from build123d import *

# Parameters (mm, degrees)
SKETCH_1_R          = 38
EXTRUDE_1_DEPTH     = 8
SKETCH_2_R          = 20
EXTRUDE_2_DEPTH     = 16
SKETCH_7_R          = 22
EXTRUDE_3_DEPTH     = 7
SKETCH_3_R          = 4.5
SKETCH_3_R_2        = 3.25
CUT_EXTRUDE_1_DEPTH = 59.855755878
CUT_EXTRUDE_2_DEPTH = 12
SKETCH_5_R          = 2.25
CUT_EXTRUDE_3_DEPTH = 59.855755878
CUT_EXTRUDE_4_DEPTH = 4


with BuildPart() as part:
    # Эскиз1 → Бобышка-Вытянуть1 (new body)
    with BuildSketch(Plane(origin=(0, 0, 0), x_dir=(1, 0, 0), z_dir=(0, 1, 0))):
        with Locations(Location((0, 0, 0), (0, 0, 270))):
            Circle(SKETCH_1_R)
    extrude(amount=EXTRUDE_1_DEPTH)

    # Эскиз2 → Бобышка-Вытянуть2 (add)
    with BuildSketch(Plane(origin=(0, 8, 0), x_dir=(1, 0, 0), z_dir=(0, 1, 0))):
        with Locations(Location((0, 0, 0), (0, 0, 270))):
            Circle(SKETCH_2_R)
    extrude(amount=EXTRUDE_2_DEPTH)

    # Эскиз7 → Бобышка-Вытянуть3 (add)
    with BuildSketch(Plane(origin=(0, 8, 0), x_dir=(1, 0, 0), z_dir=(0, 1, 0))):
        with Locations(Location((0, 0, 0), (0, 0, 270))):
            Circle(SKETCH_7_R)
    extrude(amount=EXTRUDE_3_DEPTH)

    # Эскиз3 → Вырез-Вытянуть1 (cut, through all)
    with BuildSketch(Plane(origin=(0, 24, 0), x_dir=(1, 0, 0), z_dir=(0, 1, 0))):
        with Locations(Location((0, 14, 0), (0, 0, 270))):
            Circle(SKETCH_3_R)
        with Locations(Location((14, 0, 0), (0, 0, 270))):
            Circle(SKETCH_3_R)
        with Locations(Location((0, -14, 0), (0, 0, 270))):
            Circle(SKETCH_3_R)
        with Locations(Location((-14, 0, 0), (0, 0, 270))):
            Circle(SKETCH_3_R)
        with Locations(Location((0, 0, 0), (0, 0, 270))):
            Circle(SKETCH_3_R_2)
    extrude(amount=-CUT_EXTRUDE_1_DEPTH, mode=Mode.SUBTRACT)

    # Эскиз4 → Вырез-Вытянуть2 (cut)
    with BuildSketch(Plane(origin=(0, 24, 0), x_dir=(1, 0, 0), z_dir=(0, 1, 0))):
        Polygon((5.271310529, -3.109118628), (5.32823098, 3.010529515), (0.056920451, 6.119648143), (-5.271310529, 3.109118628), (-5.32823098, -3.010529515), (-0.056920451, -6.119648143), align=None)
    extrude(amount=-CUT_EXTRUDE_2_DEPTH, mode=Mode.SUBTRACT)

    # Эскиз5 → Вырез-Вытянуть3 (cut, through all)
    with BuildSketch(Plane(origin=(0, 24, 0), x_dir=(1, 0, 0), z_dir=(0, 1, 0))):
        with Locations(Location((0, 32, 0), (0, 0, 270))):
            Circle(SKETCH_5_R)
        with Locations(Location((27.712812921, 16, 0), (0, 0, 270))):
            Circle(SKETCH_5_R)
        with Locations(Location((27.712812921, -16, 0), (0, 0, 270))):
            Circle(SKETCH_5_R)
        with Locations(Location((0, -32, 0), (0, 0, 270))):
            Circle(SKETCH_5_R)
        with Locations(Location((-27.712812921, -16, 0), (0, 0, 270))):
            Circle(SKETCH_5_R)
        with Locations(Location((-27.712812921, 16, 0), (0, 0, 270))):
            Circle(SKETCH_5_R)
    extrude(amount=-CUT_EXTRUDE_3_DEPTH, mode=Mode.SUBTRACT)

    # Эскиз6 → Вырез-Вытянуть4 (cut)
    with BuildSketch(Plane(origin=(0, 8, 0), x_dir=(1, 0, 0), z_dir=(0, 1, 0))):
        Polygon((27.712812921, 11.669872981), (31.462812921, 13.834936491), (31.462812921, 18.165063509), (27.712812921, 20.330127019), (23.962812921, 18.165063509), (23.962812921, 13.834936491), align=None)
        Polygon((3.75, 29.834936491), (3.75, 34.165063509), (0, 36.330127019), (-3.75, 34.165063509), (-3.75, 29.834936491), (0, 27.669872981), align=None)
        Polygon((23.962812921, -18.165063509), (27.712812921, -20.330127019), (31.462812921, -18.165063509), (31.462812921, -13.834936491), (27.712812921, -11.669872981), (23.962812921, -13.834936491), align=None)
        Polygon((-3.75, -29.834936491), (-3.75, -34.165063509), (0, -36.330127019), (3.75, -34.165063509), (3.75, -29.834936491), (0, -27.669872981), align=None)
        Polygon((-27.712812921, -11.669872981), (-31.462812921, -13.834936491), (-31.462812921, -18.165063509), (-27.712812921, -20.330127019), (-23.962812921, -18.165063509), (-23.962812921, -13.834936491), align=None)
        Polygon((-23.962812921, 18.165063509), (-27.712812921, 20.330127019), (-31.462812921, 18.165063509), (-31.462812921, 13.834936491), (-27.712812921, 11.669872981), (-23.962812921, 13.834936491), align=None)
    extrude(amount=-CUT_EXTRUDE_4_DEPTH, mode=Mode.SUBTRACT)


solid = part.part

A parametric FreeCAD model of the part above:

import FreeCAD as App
import Part
import Sketcher
Q = App.Units.Quantity

doc = App.newDocument("Part")
body = doc.addObject("PartDesign::Body", "Body")

# Sketch on XZ plane
sketch1 = body.newObject("Sketcher::SketchObject", "Sketch")
sketch1.AttachmentSupport = (doc.getObject("XZ_Plane"), [""])
sketch1.MapMode = "FlatFace"
sketch1.addGeometry(Part.Circle(App.Vector(0, 0, 0), App.Vector(0, 0, 1), 38), False)
sketch1.addConstraint([
    Sketcher.Constraint("Coincident", 0, 3, -1, 1),
    Sketcher.Constraint("Diameter", 0, Q("76 mm")),
])
pad1 = body.newObject("PartDesign::Pad", "Pad")
pad1.Profile = sketch1
pad1.Length = 8
pad1.Reversed = True

# Sketch on XZ plane
sketch2 = body.newObject("Sketcher::SketchObject", "Sketch001")
sketch2.AttachmentSupport = (doc.getObject("XZ_Plane"), [""])
sketch2.MapMode = "FlatFace"
sketch2.AttachmentOffset = App.Placement(App.Vector(0, 0, -8), App.Rotation())
sketch2.addGeometry(Part.Circle(App.Vector(0, 0, 0), App.Vector(0, 0, 1), 20), False)
sketch2.addConstraint([
    Sketcher.Constraint("Coincident", 0, 3, -1, 1),
    Sketcher.Constraint("Diameter", 0, Q("40 mm")),
])
pad2 = body.newObject("PartDesign::Pad", "Pad001")
pad2.Profile = sketch2
pad2.Length = 16
pad2.Reversed = True

# Sketch on XZ plane
sketch3 = body.newObject("Sketcher::SketchObject", "Sketch002")
sketch3.AttachmentSupport = (doc.getObject("XZ_Plane"), [""])
sketch3.MapMode = "FlatFace"
sketch3.AttachmentOffset = App.Placement(App.Vector(0, 0, -8), App.Rotation())
sketch3.addGeometry(Part.Circle(App.Vector(0, 0, 0), App.Vector(0, 0, 1), 22), False)
sketch3.addConstraint([
    Sketcher.Constraint("Coincident", 0, 3, -1, 1),
    Sketcher.Constraint("Diameter", 0, Q("44 mm")),
])
pad3 = body.newObject("PartDesign::Pad", "Pad002")
pad3.Profile = sketch3
pad3.Length = 7
pad3.Reversed = True

# Sketch on XZ plane
sketch4 = body.newObject("Sketcher::SketchObject", "Sketch003")
sketch4.AttachmentSupport = (doc.getObject("XZ_Plane"), [""])
sketch4.MapMode = "FlatFace"
sketch4.AttachmentOffset = App.Placement(App.Vector(0, 0, -24), App.Rotation())
sketch4.addGeometry([
    Part.Circle(App.Vector(0, -14, 0), App.Vector(0, 0, 1), 4.5),  # 0
    Part.Circle(App.Vector(14, 0, 0), App.Vector(0, 0, 1), 4.5),  # 1
    Part.Circle(App.Vector(0, 14, 0), App.Vector(0, 0, 1), 4.5),  # 2
    Part.Circle(App.Vector(-14, 0, 0), App.Vector(0, 0, 1), 4.5),  # 3
    Part.Circle(App.Vector(0, 0, 0), App.Vector(0, 0, 1), 3.2),  # 4
], False)
sketch4.addConstraint([
    Sketcher.Constraint("Coincident", 4, 3, -1, 1),
    Sketcher.Constraint("Equal", 0, 1),
    Sketcher.Constraint("Equal", 1, 2),
    Sketcher.Constraint("Equal", 2, 3),
    Sketcher.Constraint("Symmetric", 0, 3, 2, 3, -1, 1),
    Sketcher.Constraint("Symmetric", 1, 3, 3, 3, -1, 1),
    Sketcher.Constraint("PointOnObject", 0, 3, -2),
    Sketcher.Constraint("PointOnObject", 1, 3, -1),
    Sketcher.Constraint("Diameter", 0, Q("9 mm")),
    Sketcher.Constraint("Diameter", 4, Q("6.5 mm")),
    Sketcher.Constraint("DistanceY", 0, 3, -1, 1, Q("14 mm")),
    Sketcher.Constraint("DistanceX", -1, 1, 1, 3, Q("14 mm")),
])
pocket1 = body.newObject("PartDesign::Pocket", "Pocket")
pocket1.Profile = sketch4
pocket1.Type = "ThroughAll"
pocket1.Reversed = True

# Sketch on XZ plane
sketch5 = body.newObject("Sketcher::SketchObject", "Sketch004")
sketch5.AttachmentSupport = (doc.getObject("XZ_Plane"), [""])
sketch5.MapMode = "FlatFace"
sketch5.AttachmentOffset = App.Placement(App.Vector(0, 0, -24), App.Rotation())
sketch5.addGeometry([
    Part.LineSegment(App.Vector(5, 3, 0), App.Vector(5, -3, 0)),  # 0
    Part.LineSegment(App.Vector(5, -3, 0), App.Vector(0, -6, 0)),  # 1
    Part.LineSegment(App.Vector(0, -6, 0), App.Vector(-5, -3, 0)),  # 2
    Part.LineSegment(App.Vector(-5, -3, 0), App.Vector(-5, 3, 0)),  # 3
    Part.LineSegment(App.Vector(-5, 3, 0), App.Vector(0, 6, 0)),  # 4
    Part.LineSegment(App.Vector(0, 6, 0), App.Vector(5, 3, 0)),  # 5
], False)
sketch5.addConstraint([
    Sketcher.Constraint("Coincident", 0, 2, 1, 1),
    Sketcher.Constraint("Coincident", 1, 2, 2, 1),
    Sketcher.Constraint("Coincident", 2, 2, 3, 1),
    Sketcher.Constraint("Coincident", 3, 2, 4, 1),
    Sketcher.Constraint("Coincident", 4, 2, 5, 1),
    Sketcher.Constraint("Coincident", 5, 2, 0, 1),
    Sketcher.Constraint("Symmetric", 0, 2, 3, 2, -1, 1),
    Sketcher.Constraint("Symmetric", 1, 2, 4, 2, -1, 1),
    Sketcher.Constraint("Symmetric", 2, 2, 5, 2, -1, 1),
    Sketcher.Constraint("Equal", 0, 1),
    Sketcher.Constraint("Equal", 1, 2),
    Sketcher.Constraint("DistanceX", -1, 1, 0, 2, Q("5.328231 mm")),
    Sketcher.Constraint("DistanceY", 0, 2, -1, 1, Q("3.01053 mm")),
    Sketcher.Constraint("DistanceX", -1, 1, 1, 2, Q("0.05692 mm")),
    Sketcher.Constraint("DistanceY", 1, 2, -1, 1, Q("6.119648 mm")),
])
pocket2 = body.newObject("PartDesign::Pocket", "Pocket001")
pocket2.Profile = sketch5
pocket2.Length = 12
pocket2.Reversed = True

# Sketch on XZ plane
sketch6 = body.newObject("Sketcher::SketchObject", "Sketch005")
sketch6.AttachmentSupport = (doc.getObject("XZ_Plane"), [""])
sketch6.MapMode = "FlatFace"
sketch6.AttachmentOffset = App.Placement(App.Vector(0, 0, -24), App.Rotation())
sketch6.addGeometry([
    Part.Circle(App.Vector(0, -32, 0), App.Vector(0, 0, 1), 2.2),  # 0
    Part.Circle(App.Vector(27.7, -16, 0), App.Vector(0, 0, 1), 2.2),  # 1
    Part.Circle(App.Vector(27.7, 16, 0), App.Vector(0, 0, 1), 2.2),  # 2
    Part.Circle(App.Vector(0, 32, 0), App.Vector(0, 0, 1), 2.2),  # 3
    Part.Circle(App.Vector(-27.7, 16, 0), App.Vector(0, 0, 1), 2.2),  # 4
    Part.Circle(App.Vector(-27.7, -16, 0), App.Vector(0, 0, 1), 2.2),  # 5
], False)
sketch6.addConstraint([
    Sketcher.Constraint("Equal", 0, 1),
    Sketcher.Constraint("Equal", 1, 2),
    Sketcher.Constraint("Equal", 2, 3),
    Sketcher.Constraint("Equal", 3, 4),
    Sketcher.Constraint("Equal", 4, 5),
    Sketcher.Constraint("Symmetric", 0, 3, 3, 3, -1, 1),
    Sketcher.Constraint("Symmetric", 1, 3, 4, 3, -1, 1),
    Sketcher.Constraint("Symmetric", 2, 3, 5, 3, -1, 1),
    Sketcher.Constraint("Symmetric", 2, 3, 4, 3, -2),
    Sketcher.Constraint("PointOnObject", 0, 3, -2),
    Sketcher.Constraint("Diameter", 0, Q("4.5 mm")),
    Sketcher.Constraint("DistanceY", 0, 3, -1, 1, Q("32 mm")),
    Sketcher.Constraint("DistanceY", 1, 3, -1, 1, Q("16 mm")),
    Sketcher.Constraint("DistanceX", -1, 1, 1, 3, Q("27.712813 mm")),
])
pocket3 = body.newObject("PartDesign::Pocket", "Pocket002")
pocket3.Profile = sketch6
pocket3.Type = "ThroughAll"
pocket3.Reversed = True

# Sketch on XZ plane
sketch7 = body.newObject("Sketcher::SketchObject", "Sketch006")
sketch7.AttachmentSupport = (doc.getObject("XZ_Plane"), [""])
sketch7.MapMode = "FlatFace"
sketch7.AttachmentOffset = App.Placement(App.Vector(0, 0, -8), App.Rotation())
sketch7.addGeometry([
    Part.LineSegment(App.Vector(27.7, -11.7, 0), App.Vector(31.5, -13.8, 0)),  # 0
    Part.LineSegment(App.Vector(31.5, -13.8, 0), App.Vector(31.5, -18.2, 0)),  # 1
    Part.LineSegment(App.Vector(31.5, -18.2, 0), App.Vector(27.7, -20.3, 0)),  # 2
    Part.LineSegment(App.Vector(27.7, -20.3, 0), App.Vector(24, -18.2, 0)),  # 3
    Part.LineSegment(App.Vector(24, -18.2, 0), App.Vector(24, -13.8, 0)),  # 4
    Part.LineSegment(App.Vector(24, -13.8, 0), App.Vector(27.7, -11.7, 0)),  # 5
    Part.LineSegment(App.Vector(3.8, -29.8, 0), App.Vector(3.8, -34.2, 0)),  # 6
    Part.LineSegment(App.Vector(3.8, -34.2, 0), App.Vector(0, -36.3, 0)),  # 7
    Part.LineSegment(App.Vector(0, -36.3, 0), App.Vector(-3.8, -34.2, 0)),  # 8
    Part.LineSegment(App.Vector(-3.8, -34.2, 0), App.Vector(-3.8, -29.8, 0)),  # 9
    Part.LineSegment(App.Vector(-3.8, -29.8, 0), App.Vector(0, -27.7, 0)),  # 10
    Part.LineSegment(App.Vector(0, -27.7, 0), App.Vector(3.8, -29.8, 0)),  # 11
    Part.LineSegment(App.Vector(24, 18.2, 0), App.Vector(27.7, 20.3, 0)),  # 12
    Part.LineSegment(App.Vector(27.7, 20.3, 0), App.Vector(31.5, 18.2, 0)),  # 13
    Part.LineSegment(App.Vector(31.5, 18.2, 0), App.Vector(31.5, 13.8, 0)),  # 14
    Part.LineSegment(App.Vector(31.5, 13.8, 0), App.Vector(27.7, 11.7, 0)),  # 15
    Part.LineSegment(App.Vector(27.7, 11.7, 0), App.Vector(24, 13.8, 0)),  # 16
    Part.LineSegment(App.Vector(24, 13.8, 0), App.Vector(24, 18.2, 0)),  # 17
    Part.LineSegment(App.Vector(-3.8, 29.8, 0), App.Vector(-3.8, 34.2, 0)),  # 18
    Part.LineSegment(App.Vector(-3.8, 34.2, 0), App.Vector(0, 36.3, 0)),  # 19
    Part.LineSegment(App.Vector(0, 36.3, 0), App.Vector(3.8, 34.2, 0)),  # 20
    Part.LineSegment(App.Vector(3.8, 34.2, 0), App.Vector(3.8, 29.8, 0)),  # 21
    Part.LineSegment(App.Vector(3.8, 29.8, 0), App.Vector(0, 27.7, 0)),  # 22
    Part.LineSegment(App.Vector(0, 27.7, 0), App.Vector(-3.8, 29.8, 0)),  # 23
    Part.LineSegment(App.Vector(-27.7, 11.7, 0), App.Vector(-31.5, 13.8, 0)),  # 24
    Part.LineSegment(App.Vector(-31.5, 13.8, 0), App.Vector(-31.5, 18.2, 0)),  # 25
    Part.LineSegment(App.Vector(-31.5, 18.2, 0), App.Vector(-27.7, 20.3, 0)),  # 26
    Part.LineSegment(App.Vector(-27.7, 20.3, 0), App.Vector(-24, 18.2, 0)),  # 27
    Part.LineSegment(App.Vector(-24, 18.2, 0), App.Vector(-24, 13.8, 0)),  # 28
    Part.LineSegment(App.Vector(-24, 13.8, 0), App.Vector(-27.7, 11.7, 0)),  # 29
    Part.LineSegment(App.Vector(-24, -18.2, 0), App.Vector(-27.7, -20.3, 0)),  # 30
    Part.LineSegment(App.Vector(-27.7, -20.3, 0), App.Vector(-31.5, -18.2, 0)),  # 31
    Part.LineSegment(App.Vector(-31.5, -18.2, 0), App.Vector(-31.5, -13.8, 0)),  # 32
    Part.LineSegment(App.Vector(-31.5, -13.8, 0), App.Vector(-27.7, -11.7, 0)),  # 33
    Part.LineSegment(App.Vector(-27.7, -11.7, 0), App.Vector(-24, -13.8, 0)),  # 34
    Part.LineSegment(App.Vector(-24, -13.8, 0), App.Vector(-24, -18.2, 0)),  # 35
], False)
sketch7.addConstraint([
    Sketcher.Constraint("Coincident", 0, 2, 1, 1),
    Sketcher.Constraint("Coincident", 1, 2, 2, 1),
    Sketcher.Constraint("Coincident", 2, 2, 3, 1),
    Sketcher.Constraint("Coincident", 3, 2, 4, 1),
    Sketcher.Constraint("Coincident", 4, 2, 5, 1),
    Sketcher.Constraint("Coincident", 5, 2, 0, 1),
    Sketcher.Constraint("Coincident", 6, 2, 7, 1),
    Sketcher.Constraint("Coincident", 7, 2, 8, 1),
    Sketcher.Constraint("Coincident", 8, 2, 9, 1),
    Sketcher.Constraint("Coincident", 9, 2, 10, 1),
    Sketcher.Constraint("Coincident", 10, 2, 11, 1),
    Sketcher.Constraint("Coincident", 11, 2, 6, 1),
    Sketcher.Constraint("Coincident", 12, 2, 13, 1),
    Sketcher.Constraint("Coincident", 13, 2, 14, 1),
    Sketcher.Constraint("Coincident", 14, 2, 15, 1),
    Sketcher.Constraint("Coincident", 15, 2, 16, 1),
    Sketcher.Constraint("Coincident", 16, 2, 17, 1),
    Sketcher.Constraint("Coincident", 17, 2, 12, 1),
    Sketcher.Constraint("Coincident", 18, 2, 19, 1),
    Sketcher.Constraint("Coincident", 19, 2, 20, 1),
    Sketcher.Constraint("Coincident", 20, 2, 21, 1),
    Sketcher.Constraint("Coincident", 21, 2, 22, 1),
    Sketcher.Constraint("Coincident", 22, 2, 23, 1),
    Sketcher.Constraint("Coincident", 23, 2, 18, 1),
    Sketcher.Constraint("Coincident", 24, 2, 25, 1),
    Sketcher.Constraint("Coincident", 25, 2, 26, 1),
    Sketcher.Constraint("Coincident", 26, 2, 27, 1),
    Sketcher.Constraint("Coincident", 27, 2, 28, 1),
    Sketcher.Constraint("Coincident", 28, 2, 29, 1),
    Sketcher.Constraint("Coincident", 29, 2, 24, 1),
    Sketcher.Constraint("Coincident", 30, 2, 31, 1),
    Sketcher.Constraint("Coincident", 31, 2, 32, 1),
    Sketcher.Constraint("Coincident", 32, 2, 33, 1),
    Sketcher.Constraint("Coincident", 33, 2, 34, 1),
    Sketcher.Constraint("Coincident", 34, 2, 35, 1),
    Sketcher.Constraint("Coincident", 35, 2, 30, 1),
    Sketcher.Constraint("Vertical", 1),
    Sketcher.Constraint("Vertical", 4),
    Sketcher.Constraint("Vertical", 6),
    Sketcher.Constraint("Vertical", 9),
    Sketcher.Constraint("Vertical", 14),
    Sketcher.Constraint("Vertical", 17),
    Sketcher.Constraint("Vertical", 18),
    Sketcher.Constraint("Vertical", 21),
    Sketcher.Constraint("Vertical", 25),
    Sketcher.Constraint("Vertical", 28),
    Sketcher.Constraint("Vertical", 32),
    Sketcher.Constraint("Vertical", 35),
    Sketcher.Constraint("Symmetric", 6, 2, 18, 2, -1, 1),
    Sketcher.Constraint("Symmetric", 7, 2, 19, 2, -1, 1),
    Sketcher.Constraint("Symmetric", 8, 2, 20, 2, -1, 1),
    Sketcher.Constraint("Symmetric", 10, 2, 22, 2, -1, 1),
    Sketcher.Constraint("Symmetric", 0, 2, 24, 2, -1, 1),
    Sketcher.Constraint("Symmetric", 2, 2, 26, 2, -1, 1),
    Sketcher.Constraint("Symmetric", 3, 2, 27, 2, -1, 1),
    Sketcher.Constraint("Symmetric", 5, 2, 29, 2, -1, 1),
    Sketcher.Constraint("Symmetric", 12, 2, 30, 2, -1, 1),
    Sketcher.Constraint("Symmetric", 13, 2, 31, 2, -1, 1),
    Sketcher.Constraint("Symmetric", 15, 2, 33, 2, -1, 1),
    Sketcher.Constraint("Symmetric", 16, 2, 34, 2, -1, 1),
    Sketcher.Constraint("Symmetric", 6, 2, 8, 2, -2),
    Sketcher.Constraint("Symmetric", 14, 2, 24, 2, -2),
    Sketcher.Constraint("Symmetric", 12, 2, 26, 2, -2),
    Sketcher.Constraint("Symmetric", 17, 2, 27, 2, -2),
    Sketcher.Constraint("Symmetric", 15, 2, 29, 2, -2),
    Sketcher.Constraint("PointOnObject", 7, 2, -2),
    Sketcher.Constraint("PointOnObject", 10, 2, -2),
    Sketcher.Constraint("Parallel", 0, 3),
    Sketcher.Constraint("Parallel", 2, 5),
    Sketcher.Constraint("Parallel", 5, 7),
    Sketcher.Constraint("Parallel", 3, 8),
    Sketcher.Constraint("Parallel", 7, 10),
    Sketcher.Constraint("Parallel", 8, 11),
    Sketcher.Constraint("Parallel", 11, 13),
    Sketcher.Constraint("Parallel", 13, 16),
    Sketcher.Constraint("Parallel", 19, 22),
    Sketcher.Constraint("Parallel", 20, 23),
    Sketcher.Constraint("Parallel", 22, 26),
    Sketcher.Constraint("Parallel", 26, 29),
    Sketcher.Constraint("Parallel", 29, 30),
    Sketcher.Constraint("Parallel", 30, 33),
    Sketcher.Constraint("Horizontal", 1, 2, 3, 2),
    Sketcher.Constraint("Horizontal", 0, 2, 4, 2),
    Sketcher.Constraint("Equal", 4, 6),
    Sketcher.Constraint("Equal", 5, 7),
    Sketcher.Constraint("Angle", 0, Q("-30 deg")),
    Sketcher.Constraint("DistanceY", 6, 2, 3, 2, Q("16 mm")),
    Sketcher.Constraint("DistanceY", 5, 2, 12, 2, Q("32 mm")),
    Sketcher.Constraint("DistanceX", 3, 2, 1, 2, Q("7.5 mm")),
    Sketcher.Constraint("DistanceY", 1, 2, 1, 1, Q("4.330127 mm")),
    Sketcher.Constraint("DistanceX", -1, 1, 0, 2, Q("31.462813 mm")),
])
pocket4 = body.newObject("PartDesign::Pocket", "Pocket003")
pocket4.Profile = sketch7
pocket4.Length = 4
pocket4.Reversed = True

doc.recompute()
